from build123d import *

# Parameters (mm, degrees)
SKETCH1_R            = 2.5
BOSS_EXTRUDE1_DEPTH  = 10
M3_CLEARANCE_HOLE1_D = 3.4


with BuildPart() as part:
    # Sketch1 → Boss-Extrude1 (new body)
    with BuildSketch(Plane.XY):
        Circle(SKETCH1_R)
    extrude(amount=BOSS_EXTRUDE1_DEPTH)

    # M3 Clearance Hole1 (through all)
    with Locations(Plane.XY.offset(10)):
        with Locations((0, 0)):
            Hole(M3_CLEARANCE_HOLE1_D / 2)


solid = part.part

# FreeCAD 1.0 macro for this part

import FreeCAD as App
import Part
import Sketcher
from FreeCAD import Vector

doc = App.newDocument("Part")
params = doc.addObject("Spreadsheet::Sheet", "Params")
for row, (alias, value) in enumerate([
    ("sketch1_diameter", "5 mm"),
    ("pad1_length", "10 mm"),
    ("sketch2_diameter", "3.4 mm"),
    ("hole_diameter", "3.4 mm"),
], start=1):
    params.set(f"A{row}", alias)
    params.set(f"B{row}", "=" + value)
    params.setAlias(f"B{row}", alias)

body = doc.addObject("PartDesign::Body", "Body")

# Sketch on XY plane
sketch1 = doc.addObject("Sketcher::SketchObject", "Sketch")
body.addObject(sketch1)
sketch1.AttachmentSupport = (doc.XY_Plane, [""])
sketch1.MapMode = "FlatFace"
sketch1.addGeometry(Part.Circle(Vector(0, 0, 0), Vector(0, 0, 1), 2.5), False)
sketch1.addConstraint([
    Sketcher.Constraint("Coincident", 0, 3, -1, 1),
    Sketcher.Constraint("Diameter", 0, 5.0),
])
sketch1.setExpression("Constraints[1]", "Params.sketch1_diameter")
pad1 = doc.addObject("PartDesign::Pad", "Pad")
body.addObject(pad1)
pad1.Profile = sketch1
pad1.setExpression("Length", "Params.pad1_length")

# Sketch on XY plane
sketch2 = doc.addObject("Sketcher::SketchObject", "Sketch001")
body.addObject(sketch2)
sketch2.AttachmentSupport = (doc.XY_Plane, [""])
sketch2.MapMode = "FlatFace"
sketch2.AttachmentOffset = App.Placement(Vector(0, 0, 10), App.Rotation())
sketch2.addGeometry(Part.Circle(Vector(0, 0, 0), Vector(0, 0, 1), 1.7), False)
sketch2.addConstraint([
    Sketcher.Constraint("Coincident", 0, 3, -1, 1),
    Sketcher.Constraint("Diameter", 0, 3.4),
])
sketch2.setExpression("Constraints[1]", "Params.sketch2_diameter")
doc.recompute()
hole = doc.addObject("PartDesign::Hole", "Hole")
body.addObject(hole)
hole.Profile = sketch2
hole.ThreadType = "None"
hole.setExpression("Diameter", "Params.hole_diameter")
hole.DepthType = "ThroughAll"

doc.recompute()
